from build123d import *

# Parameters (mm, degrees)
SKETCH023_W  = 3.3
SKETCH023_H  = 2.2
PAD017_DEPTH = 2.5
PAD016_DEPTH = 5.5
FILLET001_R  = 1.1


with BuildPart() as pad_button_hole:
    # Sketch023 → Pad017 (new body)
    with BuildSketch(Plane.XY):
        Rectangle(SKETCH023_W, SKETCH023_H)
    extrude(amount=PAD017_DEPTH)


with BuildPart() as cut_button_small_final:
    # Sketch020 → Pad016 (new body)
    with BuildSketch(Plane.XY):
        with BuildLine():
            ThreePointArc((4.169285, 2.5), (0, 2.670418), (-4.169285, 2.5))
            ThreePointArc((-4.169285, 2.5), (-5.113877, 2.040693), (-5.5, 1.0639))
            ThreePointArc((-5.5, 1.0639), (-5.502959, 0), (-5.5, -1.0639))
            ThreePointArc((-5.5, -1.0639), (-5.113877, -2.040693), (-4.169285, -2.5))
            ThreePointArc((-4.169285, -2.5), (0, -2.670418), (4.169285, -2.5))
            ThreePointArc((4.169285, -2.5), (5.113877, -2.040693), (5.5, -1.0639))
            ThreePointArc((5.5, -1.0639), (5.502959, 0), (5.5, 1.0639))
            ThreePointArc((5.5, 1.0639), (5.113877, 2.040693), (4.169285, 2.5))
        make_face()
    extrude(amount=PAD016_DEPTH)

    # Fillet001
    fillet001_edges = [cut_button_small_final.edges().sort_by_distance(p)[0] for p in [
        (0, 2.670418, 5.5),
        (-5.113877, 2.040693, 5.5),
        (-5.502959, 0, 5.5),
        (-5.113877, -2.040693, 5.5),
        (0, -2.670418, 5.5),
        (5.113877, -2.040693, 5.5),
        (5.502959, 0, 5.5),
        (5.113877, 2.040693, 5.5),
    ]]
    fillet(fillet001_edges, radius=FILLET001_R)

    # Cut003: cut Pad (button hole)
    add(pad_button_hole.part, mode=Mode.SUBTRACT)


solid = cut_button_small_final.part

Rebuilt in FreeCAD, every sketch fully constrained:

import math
import FreeCAD as App
import Part
import Sketcher

V = App.Vector
Q = App.Units.Quantity


def edges_at(feature, points):
    """Names of the edges that pass closest to the given points."""
    edges = feature.Shape.Edges
    near = lambda p: min(range(len(edges)), key=lambda i: edges[i].distToShape(Part.Vertex(*p))[0])
    return sorted({f"Edge{near(p) + 1}" for p in points})


def add_polygon(sketch, points):
    """Adds a closed chain of lines whose ends are joined by coincident constraints."""
    first, n = sketch.GeometryCount, len(points)
    for a, b in zip(points, points[1:] + points[:1]):
        sketch.addGeometry(Part.LineSegment(App.Vector(*a, 0), App.Vector(*b, 0)), False)
    for i in range(n):
        sketch.addConstraint(Sketcher.Constraint("Coincident", first + i, 2, first + (i + 1) % n, 1))

doc = App.newDocument("Part")
body = doc.addObject("PartDesign::Body", "Body")

# Sketch on XY plane
sketch1 = body.newObject("Sketcher::SketchObject", "Sketch")
sketch1.AttachmentSupport = (doc.getObject("XY_Plane"), [""])
sketch1.MapMode = "FlatFace"
add_polygon(sketch1, [(-1.6, 1.1), (-1.6, -1.1), (1.6, -1.1), (1.6, 1.1)])  # lines 0-3
sketch1.addConstraint(Sketcher.Constraint("Vertical", 0))
sketch1.addConstraint(Sketcher.Constraint("Horizontal", 1))
sketch1.addConstraint(Sketcher.Constraint("Vertical", 2))
sketch1.addConstraint(Sketcher.Constraint("Horizontal", 3))
sketch1.addConstraint(Sketcher.Constraint("Symmetric", 0, 2, 2, 2, -1, 1))
sketch1.addConstraint(Sketcher.Constraint("DistanceX", 1, 1, 1, 2, Q("3.3 mm")))
sketch1.addConstraint(Sketcher.Constraint("DistanceY", 0, 2, 0, 1, Q("2.2 mm")))
pad1 = body.newObject("PartDesign::Pad", "Pad")
pad1.Profile = sketch1
pad1.Length = 2.5
body2 = doc.addObject("PartDesign::Body", "Body001")

# Sketch on XY plane
sketch2 = body2.newObject("Sketcher::SketchObject", "Sketch001")
sketch2.AttachmentSupport = (doc.getObject("XY_Plane001"), [""])
sketch2.MapMode = "FlatFace"
sketch2.addGeometry(Part.ArcOfCircle(Part.Circle(V(0, -48.4, 0), V(0, 0, 1), 51.1), math.radians(85.32), math.radians(94.68)), False)
sketch2.addGeometry(Part.ArcOfCircle(Part.Circle(V(-4.1, 1.1, 0), V(0, 0, 1), 1.4), math.radians(95), math.radians(180)), False)
sketch2.addGeometry(Part.ArcOfCircle(Part.Circle(V(185.8, 0, 0), V(0, 0, 1), 191.3), math.radians(179.68), math.radians(180.32)), False)
sketch2.addGeometry(Part.ArcOfCircle(Part.Circle(V(-4.1, -1.1, 0), V(0, 0, 1), 1.4), math.radians(-180), math.radians(-95)), False)
sketch2.addGeometry(Part.ArcOfCircle(Part.Circle(V(0, 48.4, 0), V(0, 0, 1), 51.1), math.radians(-94.68), math.radians(-85.32)), False)
sketch2.addGeometry(Part.ArcOfCircle(Part.Circle(V(4.1, -1.1, 0), V(0, 0, 1), 1.4), math.radians(-85), math.radians(0)), False)
sketch2.addGeometry(Part.ArcOfCircle(Part.Circle(V(-185.8, 0, 0), V(0, 0, 1), 191.3), math.radians(-0.32), math.radians(0.32)), False)
sketch2.addGeometry(Part.ArcOfCircle(Part.Circle(V(4.1, 1.1, 0), V(0, 0, 1), 1.4), math.radians(0), math.radians(85)), False)
sketch2.addConstraint(Sketcher.Constraint("Tangent", 0, 2, 1, 1))
sketch2.addConstraint(Sketcher.Constraint("Tangent", 1, 2, 2, 1))
sketch2.addConstraint(Sketcher.Constraint("Tangent", 2, 2, 3, 1))
sketch2.addConstraint(Sketcher.Constraint("Tangent", 3, 2, 4, 1))
sketch2.addConstraint(Sketcher.Constraint("Tangent", 4, 2, 5, 1))
sketch2.addConstraint(Sketcher.Constraint("Tangent", 5, 2, 6, 1))
sketch2.addConstraint(Sketcher.Constraint("Tangent", 6, 2, 7, 1))
sketch2.addConstraint(Sketcher.Constraint("Tangent", 7, 2, 0, 1))
sketch2.addConstraint(Sketcher.Constraint("Equal", 1, 3))
sketch2.addConstraint(Sketcher.Constraint("Equal", 0, 4))
sketch2.addConstraint(Sketcher.Constraint("Equal", 3, 5))
sketch2.addConstraint(Sketcher.Constraint("Equal", 2, 6))
sketch2.addConstraint(Sketcher.Constraint("Equal", 5, 7))
sketch2.addConstraint(Sketcher.Constraint("Symmetric", 0, 3, 4, 3, -1, 1))
sketch2.addConstraint(Sketcher.Constraint("Symmetric", 2, 3, 6, 3, -1, 1))
sketch2.addConstraint(Sketcher.Constraint("Symmetric", 3, 3, 5, 3, -2))
sketch2.addConstraint(Sketcher.Constraint("DistanceY", 3, 2, 0, 2, Q("5 mm")))
sketch2.addConstraint(Sketcher.Constraint("DistanceX", 1, 2, -1, 1, Q("5.5 mm")))
sketch2.addConstraint(Sketcher.Constraint("Radius", 0, Q("51.086093 mm")))
sketch2.addConstraint(Sketcher.Constraint("Radius", 1, Q("1.448994 mm")))
sketch2.addConstraint(Sketcher.Constraint("Radius", 2, Q("191.262583 mm")))
pad2 = body2.newObject("PartDesign::Pad", "Pad001")
pad2.Profile = sketch2
pad2.Length = 5.5
doc.recompute()

fillet = body2.newObject("PartDesign::Fillet", "Fillet")
fillet.Base = (pad2, edges_at(pad2, [
    (0, 2.67, 5.5),
    (-5.114, 2.041, 5.5),
    (-5.503, 0, 5.5),
    (-5.114, -2.041, 5.5),
    (0, -2.67, 5.5),
    (5.114, -2.041, 5.5),
    (5.503, 0, 5.5),
    (5.114, 2.041, 5.5),
]))
fillet.Radius = 1.1
doc.recompute()

boolean = body2.newObject("PartDesign::Boolean", "Boolean")
boolean.Type = "Cut"
boolean.addObjects([body])

doc.recompute()
